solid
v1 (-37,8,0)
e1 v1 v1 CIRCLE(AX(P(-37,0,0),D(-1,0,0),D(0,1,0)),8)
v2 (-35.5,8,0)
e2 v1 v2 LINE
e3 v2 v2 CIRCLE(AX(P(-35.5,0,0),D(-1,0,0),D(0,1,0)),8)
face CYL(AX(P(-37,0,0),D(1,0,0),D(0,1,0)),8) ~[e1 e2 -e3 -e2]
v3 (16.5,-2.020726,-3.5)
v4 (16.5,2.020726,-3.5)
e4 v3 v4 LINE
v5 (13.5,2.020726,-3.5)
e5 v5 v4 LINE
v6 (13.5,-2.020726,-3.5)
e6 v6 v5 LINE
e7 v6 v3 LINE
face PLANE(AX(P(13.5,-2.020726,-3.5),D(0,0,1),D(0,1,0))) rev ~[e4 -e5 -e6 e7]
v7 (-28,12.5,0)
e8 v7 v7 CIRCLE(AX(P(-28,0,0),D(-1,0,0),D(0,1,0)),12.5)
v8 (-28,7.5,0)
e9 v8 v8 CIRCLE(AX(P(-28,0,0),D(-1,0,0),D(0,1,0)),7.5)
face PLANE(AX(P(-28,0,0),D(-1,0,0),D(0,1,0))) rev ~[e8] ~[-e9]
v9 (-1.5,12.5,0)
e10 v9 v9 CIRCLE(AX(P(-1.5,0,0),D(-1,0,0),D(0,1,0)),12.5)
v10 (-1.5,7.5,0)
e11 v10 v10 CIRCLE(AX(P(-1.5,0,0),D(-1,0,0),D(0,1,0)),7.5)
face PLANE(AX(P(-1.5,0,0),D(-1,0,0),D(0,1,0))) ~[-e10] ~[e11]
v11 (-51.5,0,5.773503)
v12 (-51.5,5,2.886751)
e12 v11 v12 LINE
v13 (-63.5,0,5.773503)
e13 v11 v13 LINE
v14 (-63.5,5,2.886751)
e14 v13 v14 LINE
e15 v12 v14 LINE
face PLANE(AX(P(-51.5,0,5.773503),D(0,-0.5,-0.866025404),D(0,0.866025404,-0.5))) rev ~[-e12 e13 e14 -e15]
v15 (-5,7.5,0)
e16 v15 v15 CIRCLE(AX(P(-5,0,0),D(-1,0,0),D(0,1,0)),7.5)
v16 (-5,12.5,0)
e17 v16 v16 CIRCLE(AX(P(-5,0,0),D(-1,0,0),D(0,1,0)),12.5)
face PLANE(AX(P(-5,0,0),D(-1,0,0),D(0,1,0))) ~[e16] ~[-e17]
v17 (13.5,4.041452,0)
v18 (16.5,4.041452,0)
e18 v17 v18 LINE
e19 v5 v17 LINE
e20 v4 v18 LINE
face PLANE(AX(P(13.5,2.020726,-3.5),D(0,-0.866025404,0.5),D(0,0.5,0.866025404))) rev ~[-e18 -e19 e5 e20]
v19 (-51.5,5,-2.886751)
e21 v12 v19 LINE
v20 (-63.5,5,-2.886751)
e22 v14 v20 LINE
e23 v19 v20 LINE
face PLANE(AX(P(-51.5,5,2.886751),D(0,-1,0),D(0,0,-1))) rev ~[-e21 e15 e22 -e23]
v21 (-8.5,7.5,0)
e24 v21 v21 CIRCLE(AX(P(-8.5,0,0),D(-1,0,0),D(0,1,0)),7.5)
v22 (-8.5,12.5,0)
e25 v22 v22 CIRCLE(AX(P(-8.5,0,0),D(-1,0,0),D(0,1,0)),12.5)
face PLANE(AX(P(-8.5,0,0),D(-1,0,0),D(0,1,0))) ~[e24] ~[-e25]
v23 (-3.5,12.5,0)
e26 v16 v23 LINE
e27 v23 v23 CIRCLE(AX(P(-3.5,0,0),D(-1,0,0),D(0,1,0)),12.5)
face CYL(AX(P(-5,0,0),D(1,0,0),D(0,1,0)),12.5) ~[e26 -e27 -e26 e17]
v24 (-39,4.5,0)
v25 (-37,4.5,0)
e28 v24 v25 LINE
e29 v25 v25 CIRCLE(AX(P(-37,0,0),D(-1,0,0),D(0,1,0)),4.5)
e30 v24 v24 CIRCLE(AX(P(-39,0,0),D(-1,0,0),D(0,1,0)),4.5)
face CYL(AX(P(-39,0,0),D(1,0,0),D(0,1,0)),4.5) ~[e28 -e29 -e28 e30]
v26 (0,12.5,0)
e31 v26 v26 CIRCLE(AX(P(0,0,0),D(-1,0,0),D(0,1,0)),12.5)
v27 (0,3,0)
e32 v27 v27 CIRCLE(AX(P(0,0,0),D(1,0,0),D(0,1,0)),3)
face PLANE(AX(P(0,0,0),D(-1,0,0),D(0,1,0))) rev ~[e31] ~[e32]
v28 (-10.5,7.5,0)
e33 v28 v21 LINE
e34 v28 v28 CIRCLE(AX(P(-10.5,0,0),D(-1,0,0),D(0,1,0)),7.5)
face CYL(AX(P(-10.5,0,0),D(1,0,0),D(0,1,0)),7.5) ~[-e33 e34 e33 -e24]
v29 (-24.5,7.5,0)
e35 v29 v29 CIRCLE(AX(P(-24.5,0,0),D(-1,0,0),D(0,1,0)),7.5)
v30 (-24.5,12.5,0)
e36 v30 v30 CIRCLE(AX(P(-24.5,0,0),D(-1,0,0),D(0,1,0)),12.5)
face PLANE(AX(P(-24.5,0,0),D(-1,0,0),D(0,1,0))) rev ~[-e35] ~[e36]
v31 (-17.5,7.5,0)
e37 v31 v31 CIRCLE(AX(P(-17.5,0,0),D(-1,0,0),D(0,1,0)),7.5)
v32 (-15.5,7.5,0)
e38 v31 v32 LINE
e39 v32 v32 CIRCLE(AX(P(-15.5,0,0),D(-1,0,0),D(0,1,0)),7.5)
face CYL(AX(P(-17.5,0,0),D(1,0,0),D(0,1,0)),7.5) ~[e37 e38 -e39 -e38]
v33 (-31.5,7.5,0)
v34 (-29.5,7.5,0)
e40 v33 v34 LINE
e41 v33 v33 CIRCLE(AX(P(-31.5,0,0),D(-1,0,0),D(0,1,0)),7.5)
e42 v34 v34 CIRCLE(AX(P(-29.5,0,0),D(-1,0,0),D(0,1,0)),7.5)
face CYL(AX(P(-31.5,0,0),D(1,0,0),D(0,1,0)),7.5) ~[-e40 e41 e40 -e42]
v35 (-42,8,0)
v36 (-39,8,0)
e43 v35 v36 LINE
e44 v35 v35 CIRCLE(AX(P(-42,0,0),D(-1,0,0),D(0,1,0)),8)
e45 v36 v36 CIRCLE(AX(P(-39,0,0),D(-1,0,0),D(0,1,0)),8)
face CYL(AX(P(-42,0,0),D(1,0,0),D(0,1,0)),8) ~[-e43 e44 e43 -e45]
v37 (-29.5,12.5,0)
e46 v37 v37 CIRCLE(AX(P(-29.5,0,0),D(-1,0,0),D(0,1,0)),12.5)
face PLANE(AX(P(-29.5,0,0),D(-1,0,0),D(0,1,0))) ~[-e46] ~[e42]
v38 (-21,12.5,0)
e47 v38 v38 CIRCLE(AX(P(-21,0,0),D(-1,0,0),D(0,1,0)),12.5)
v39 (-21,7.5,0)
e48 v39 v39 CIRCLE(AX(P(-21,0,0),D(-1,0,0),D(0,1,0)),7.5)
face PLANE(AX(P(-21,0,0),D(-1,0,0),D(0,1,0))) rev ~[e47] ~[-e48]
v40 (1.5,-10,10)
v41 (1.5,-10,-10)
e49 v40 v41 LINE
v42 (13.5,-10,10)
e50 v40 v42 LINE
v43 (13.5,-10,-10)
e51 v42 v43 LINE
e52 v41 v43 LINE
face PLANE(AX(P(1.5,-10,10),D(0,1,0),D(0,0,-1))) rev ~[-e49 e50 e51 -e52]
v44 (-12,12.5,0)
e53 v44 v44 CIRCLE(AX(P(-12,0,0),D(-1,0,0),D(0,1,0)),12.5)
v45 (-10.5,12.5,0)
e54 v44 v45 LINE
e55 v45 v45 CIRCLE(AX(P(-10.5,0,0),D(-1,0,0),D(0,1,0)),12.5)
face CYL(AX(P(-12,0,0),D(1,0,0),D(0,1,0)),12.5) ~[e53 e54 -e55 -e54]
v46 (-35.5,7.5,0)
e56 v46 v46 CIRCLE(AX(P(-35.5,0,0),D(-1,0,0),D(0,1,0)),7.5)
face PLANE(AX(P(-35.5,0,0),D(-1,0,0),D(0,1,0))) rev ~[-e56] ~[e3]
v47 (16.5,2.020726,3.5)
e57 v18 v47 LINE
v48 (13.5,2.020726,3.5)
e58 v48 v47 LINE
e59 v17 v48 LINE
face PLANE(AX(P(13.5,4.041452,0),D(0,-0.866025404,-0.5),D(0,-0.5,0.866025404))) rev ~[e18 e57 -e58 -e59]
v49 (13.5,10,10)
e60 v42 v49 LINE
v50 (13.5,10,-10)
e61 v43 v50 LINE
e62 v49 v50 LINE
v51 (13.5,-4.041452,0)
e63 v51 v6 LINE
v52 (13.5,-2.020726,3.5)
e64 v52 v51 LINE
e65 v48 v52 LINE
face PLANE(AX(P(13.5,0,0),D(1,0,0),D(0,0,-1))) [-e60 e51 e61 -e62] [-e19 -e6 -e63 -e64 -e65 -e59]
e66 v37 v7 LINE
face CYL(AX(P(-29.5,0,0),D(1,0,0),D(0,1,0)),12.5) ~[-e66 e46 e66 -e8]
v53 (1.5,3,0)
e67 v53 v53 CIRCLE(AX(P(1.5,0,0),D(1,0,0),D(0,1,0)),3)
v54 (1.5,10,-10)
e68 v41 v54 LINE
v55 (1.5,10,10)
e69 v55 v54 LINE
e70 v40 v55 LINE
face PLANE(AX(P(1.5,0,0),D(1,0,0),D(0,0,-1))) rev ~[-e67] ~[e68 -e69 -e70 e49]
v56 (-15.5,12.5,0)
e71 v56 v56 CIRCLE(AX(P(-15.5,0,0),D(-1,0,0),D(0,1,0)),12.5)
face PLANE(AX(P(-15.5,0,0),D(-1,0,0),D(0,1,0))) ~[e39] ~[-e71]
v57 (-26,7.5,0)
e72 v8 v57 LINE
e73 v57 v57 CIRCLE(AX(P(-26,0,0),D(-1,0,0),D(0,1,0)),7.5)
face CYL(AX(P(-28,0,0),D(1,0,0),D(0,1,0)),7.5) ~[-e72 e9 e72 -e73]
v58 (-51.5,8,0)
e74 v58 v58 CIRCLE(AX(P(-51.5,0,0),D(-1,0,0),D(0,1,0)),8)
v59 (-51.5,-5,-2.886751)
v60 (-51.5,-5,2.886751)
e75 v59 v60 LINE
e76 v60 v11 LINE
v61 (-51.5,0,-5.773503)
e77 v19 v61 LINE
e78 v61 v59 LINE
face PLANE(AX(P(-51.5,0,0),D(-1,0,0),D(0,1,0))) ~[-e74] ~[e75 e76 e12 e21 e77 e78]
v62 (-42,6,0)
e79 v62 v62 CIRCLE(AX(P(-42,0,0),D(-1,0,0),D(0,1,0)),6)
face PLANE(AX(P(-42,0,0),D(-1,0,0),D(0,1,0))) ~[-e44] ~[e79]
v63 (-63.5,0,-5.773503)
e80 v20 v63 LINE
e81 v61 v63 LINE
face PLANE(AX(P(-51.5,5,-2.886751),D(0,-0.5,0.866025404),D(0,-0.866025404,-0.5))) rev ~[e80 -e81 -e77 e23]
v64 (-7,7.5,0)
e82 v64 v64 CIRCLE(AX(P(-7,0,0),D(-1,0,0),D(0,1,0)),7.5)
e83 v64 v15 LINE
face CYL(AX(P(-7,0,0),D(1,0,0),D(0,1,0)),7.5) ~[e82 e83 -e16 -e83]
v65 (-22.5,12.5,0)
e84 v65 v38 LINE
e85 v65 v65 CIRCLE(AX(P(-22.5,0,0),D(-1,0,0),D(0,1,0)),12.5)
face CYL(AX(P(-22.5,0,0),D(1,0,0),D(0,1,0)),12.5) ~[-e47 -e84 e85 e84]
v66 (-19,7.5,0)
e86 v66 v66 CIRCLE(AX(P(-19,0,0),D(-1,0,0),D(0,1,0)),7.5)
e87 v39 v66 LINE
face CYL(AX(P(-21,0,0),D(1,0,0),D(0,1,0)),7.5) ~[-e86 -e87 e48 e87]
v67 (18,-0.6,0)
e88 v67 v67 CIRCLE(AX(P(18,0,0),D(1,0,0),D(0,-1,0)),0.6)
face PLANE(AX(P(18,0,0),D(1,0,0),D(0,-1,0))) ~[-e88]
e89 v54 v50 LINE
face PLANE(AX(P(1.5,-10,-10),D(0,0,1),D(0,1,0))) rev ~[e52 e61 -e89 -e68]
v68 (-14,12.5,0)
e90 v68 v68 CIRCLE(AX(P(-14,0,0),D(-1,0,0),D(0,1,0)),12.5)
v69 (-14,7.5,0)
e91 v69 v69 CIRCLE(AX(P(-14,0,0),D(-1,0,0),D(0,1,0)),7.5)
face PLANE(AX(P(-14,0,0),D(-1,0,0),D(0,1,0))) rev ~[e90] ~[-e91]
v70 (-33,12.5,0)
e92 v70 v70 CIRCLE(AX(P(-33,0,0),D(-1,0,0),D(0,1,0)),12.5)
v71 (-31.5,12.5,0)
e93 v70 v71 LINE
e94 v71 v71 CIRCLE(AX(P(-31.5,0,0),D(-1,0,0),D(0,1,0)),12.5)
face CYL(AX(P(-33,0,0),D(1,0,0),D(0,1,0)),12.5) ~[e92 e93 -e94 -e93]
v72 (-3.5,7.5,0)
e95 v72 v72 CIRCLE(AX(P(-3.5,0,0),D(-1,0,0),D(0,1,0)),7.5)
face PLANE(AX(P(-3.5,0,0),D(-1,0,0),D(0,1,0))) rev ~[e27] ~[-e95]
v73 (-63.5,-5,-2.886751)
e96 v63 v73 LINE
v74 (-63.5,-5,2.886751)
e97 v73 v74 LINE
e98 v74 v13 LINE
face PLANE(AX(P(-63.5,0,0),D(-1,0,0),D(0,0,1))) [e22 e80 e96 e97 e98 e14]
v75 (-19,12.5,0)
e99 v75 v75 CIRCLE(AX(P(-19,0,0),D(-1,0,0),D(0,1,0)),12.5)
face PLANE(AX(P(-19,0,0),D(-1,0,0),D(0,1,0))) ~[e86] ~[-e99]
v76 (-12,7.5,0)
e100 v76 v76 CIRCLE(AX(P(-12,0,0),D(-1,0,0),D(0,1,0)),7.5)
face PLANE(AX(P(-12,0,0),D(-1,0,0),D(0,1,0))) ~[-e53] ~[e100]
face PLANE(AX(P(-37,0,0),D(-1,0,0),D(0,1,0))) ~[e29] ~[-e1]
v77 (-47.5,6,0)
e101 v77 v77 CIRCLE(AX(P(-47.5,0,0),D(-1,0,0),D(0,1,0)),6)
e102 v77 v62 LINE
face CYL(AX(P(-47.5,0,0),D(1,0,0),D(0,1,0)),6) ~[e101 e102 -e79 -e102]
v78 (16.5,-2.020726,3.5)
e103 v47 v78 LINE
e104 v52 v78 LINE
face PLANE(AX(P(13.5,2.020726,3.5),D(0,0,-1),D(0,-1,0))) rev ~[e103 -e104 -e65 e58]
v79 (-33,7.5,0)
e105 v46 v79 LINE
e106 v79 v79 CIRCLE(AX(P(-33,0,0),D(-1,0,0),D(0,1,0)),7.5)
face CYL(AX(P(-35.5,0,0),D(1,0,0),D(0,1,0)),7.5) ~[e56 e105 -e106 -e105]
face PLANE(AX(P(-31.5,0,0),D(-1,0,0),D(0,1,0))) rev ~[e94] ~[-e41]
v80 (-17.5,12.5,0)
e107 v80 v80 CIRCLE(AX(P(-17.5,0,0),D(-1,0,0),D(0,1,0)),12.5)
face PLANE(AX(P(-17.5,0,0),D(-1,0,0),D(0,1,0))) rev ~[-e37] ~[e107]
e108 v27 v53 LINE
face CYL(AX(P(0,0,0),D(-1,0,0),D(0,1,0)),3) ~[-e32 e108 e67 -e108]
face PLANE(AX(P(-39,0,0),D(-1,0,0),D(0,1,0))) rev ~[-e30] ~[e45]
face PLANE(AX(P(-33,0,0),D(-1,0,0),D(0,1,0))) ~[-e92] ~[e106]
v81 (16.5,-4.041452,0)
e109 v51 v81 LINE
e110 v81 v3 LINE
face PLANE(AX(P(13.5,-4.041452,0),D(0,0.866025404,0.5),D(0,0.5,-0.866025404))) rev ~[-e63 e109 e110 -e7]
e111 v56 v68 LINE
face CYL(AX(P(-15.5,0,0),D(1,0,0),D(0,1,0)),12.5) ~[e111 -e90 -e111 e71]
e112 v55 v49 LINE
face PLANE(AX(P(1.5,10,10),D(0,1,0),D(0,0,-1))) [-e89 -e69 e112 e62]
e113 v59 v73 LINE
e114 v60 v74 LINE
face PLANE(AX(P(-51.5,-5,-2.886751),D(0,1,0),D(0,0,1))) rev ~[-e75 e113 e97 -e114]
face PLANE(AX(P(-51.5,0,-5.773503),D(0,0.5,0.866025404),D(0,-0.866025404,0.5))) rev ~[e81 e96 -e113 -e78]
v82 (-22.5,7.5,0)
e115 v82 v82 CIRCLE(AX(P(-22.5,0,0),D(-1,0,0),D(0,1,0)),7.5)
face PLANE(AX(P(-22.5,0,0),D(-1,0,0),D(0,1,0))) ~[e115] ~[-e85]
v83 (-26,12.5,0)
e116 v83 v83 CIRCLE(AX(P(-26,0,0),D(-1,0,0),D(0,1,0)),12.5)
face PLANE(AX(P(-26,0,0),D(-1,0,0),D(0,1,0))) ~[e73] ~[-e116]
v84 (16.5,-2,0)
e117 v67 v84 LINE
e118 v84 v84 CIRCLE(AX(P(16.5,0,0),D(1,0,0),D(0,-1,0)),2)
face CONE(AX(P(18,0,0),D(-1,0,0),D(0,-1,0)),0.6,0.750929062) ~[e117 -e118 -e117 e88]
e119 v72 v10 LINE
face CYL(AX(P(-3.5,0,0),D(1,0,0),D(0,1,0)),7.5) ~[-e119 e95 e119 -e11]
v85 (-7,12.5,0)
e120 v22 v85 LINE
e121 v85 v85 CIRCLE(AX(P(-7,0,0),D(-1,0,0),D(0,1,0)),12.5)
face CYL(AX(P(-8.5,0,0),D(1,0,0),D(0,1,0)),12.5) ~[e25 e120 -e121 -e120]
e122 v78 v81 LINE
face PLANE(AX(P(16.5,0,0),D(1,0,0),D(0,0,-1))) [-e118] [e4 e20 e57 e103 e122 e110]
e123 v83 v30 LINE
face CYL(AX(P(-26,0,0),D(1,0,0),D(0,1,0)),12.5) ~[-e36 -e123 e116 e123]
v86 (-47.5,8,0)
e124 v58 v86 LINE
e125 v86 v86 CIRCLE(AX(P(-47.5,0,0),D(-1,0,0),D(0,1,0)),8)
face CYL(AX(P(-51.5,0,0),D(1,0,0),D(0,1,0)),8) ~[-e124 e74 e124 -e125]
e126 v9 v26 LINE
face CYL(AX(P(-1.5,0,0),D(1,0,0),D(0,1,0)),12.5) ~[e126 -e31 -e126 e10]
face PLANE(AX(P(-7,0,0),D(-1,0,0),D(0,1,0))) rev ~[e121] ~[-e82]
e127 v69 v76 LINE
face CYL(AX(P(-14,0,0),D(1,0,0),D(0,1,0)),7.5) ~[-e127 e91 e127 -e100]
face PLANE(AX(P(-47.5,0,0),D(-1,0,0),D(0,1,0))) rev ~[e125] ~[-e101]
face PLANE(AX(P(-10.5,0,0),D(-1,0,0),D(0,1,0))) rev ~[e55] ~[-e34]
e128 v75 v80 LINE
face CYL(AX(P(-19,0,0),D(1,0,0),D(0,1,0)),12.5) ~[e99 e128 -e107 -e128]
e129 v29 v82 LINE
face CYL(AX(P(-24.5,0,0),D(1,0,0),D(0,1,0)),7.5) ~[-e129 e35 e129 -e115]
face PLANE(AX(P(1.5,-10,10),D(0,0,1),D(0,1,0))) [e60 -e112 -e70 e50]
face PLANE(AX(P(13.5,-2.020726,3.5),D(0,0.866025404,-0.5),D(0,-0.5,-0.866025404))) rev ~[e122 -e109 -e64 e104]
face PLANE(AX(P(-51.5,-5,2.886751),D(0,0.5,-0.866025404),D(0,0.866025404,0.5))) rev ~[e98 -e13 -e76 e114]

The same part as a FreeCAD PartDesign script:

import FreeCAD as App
import Part
import Sketcher

V = App.Vector
Q = App.Units.Quantity

doc = App.newDocument("Part")
params = doc.addObject("Spreadsheet::Sheet", "Params")
for row, (alias, value) in enumerate([
    ("sketch1_width", "2 mm"),
    ("sketch1_width2", "3 mm"),
    ("sketch1_width3", "4 mm"),
    ("sketch1_height", "5 mm"),
    ("sketch1_height2", "8 mm"),
    ("revolution_angle", "360 deg"),
    ("sketch2_diameter", "6 mm"),
    ("pad1_length", "1.5 mm"),
    ("sketch3_width", "20 mm"),
    ("pad2_length", "12 mm"),
    ("pad3_length", "3 mm"),
    ("sketch5_height", "2 mm"),
    ("sketch5_width", "1.5 mm"),
    ("sketch5_height2", "0.6 mm"),
    ("revolution2_angle", "360 deg"),
    ("pad4_length", "12 mm"),
], start=1):
    params.set(f"A{row}", alias)
    params.set(f"B{row}", "=" + value)
    params.setAlias(f"B{row}", alias)

body = doc.addObject("PartDesign::Body", "Body")

# Sketch on XY plane
sketch1 = body.newObject("Sketcher::SketchObject", "Sketch")
sketch1.AttachmentSupport = (doc.getObject("XY_Plane"), [""])
sketch1.MapMode = "FlatFace"
sketch1.addGeometry(Part.LineSegment(V(-51.5, 0, 0), V(0, 0, 0)), False)
sketch1.addGeometry(Part.LineSegment(V(0, 0, 0), V(0, 12.5, 0)), False)
sketch1.addGeometry(Part.LineSegment(V(0, 12.5, 0), V(-1.5, 12.5, 0)), False)
sketch1.addGeometry(Part.LineSegment(V(-1.5, 12.5, 0), V(-1.5, 7.5, 0)), False)
sketch1.addGeometry(Part.LineSegment(V(-1.5, 7.5, 0), V(-3.5, 7.5, 0)), False)
sketch1.addGeometry(Part.LineSegment(V(-3.5, 7.5, 0), V(-3.5, 12.5, 0)), False)
sketch1.addGeometry(Part.LineSegment(V(-3.5, 12.5, 0), V(-5, 12.5, 0)), False)
sketch1.addGeometry(Part.LineSegment(V(-5, 12.5, 0), V(-5, 7.5, 0)), False)
sketch1.addGeometry(Part.LineSegment(V(-5, 7.5, 0), V(-7, 7.5, 0)), False)
sketch1.addGeometry(Part.LineSegment(V(-7, 7.5, 0), V(-7, 12.5, 0)), False)
sketch1.addGeometry(Part.LineSegment(V(-7, 12.5, 0), V(-8.5, 12.5, 0)), False)
sketch1.addGeometry(Part.LineSegment(V(-8.5, 12.5, 0), V(-8.5, 7.5, 0)), False)
sketch1.addGeometry(Part.LineSegment(V(-8.5, 7.5, 0), V(-10.5, 7.5, 0)), False)
sketch1.addGeometry(Part.LineSegment(V(-10.5, 7.5, 0), V(-10.5, 12.5, 0)), False)
sketch1.addGeometry(Part.LineSegment(V(-10.5, 12.5, 0), V(-12, 12.5, 0)), False)
sketch1.addGeometry(Part.LineSegment(V(-12, 12.5, 0), V(-12, 7.5, 0)), False)
sketch1.addGeometry(Part.LineSegment(V(-12, 7.5, 0), V(-14, 7.5, 0)), False)
sketch1.addGeometry(Part.LineSegment(V(-14, 7.5, 0), V(-14, 12.5, 0)), False)
sketch1.addGeometry(Part.LineSegment(V(-14, 12.5, 0), V(-15.5, 12.5, 0)), False)
sketch1.addGeometry(Part.LineSegment(V(-15.5, 12.5, 0), V(-15.5, 7.5, 0)), False)
sketch1.addGeometry(Part.LineSegment(V(-15.5, 7.5, 0), V(-17.5, 7.5, 0)), False)
sketch1.addGeometry(Part.LineSegment(V(-17.5, 7.5, 0), V(-17.5, 12.5, 0)), False)
sketch1.addGeometry(Part.LineSegment(V(-17.5, 12.5, 0), V(-19, 12.5, 0)), False)
sketch1.addGeometry(Part.LineSegment(V(-19, 12.5, 0), V(-19, 7.5, 0)), False)
sketch1.addGeometry(Part.LineSegment(V(-19, 7.5, 0), V(-21, 7.5, 0)), False)
sketch1.addGeometry(Part.LineSegment(V(-21, 7.5, 0), V(-21, 12.5, 0)), False)
sketch1.addGeometry(Part.LineSegment(V(-21, 12.5, 0), V(-22.5, 12.5, 0)), False)
sketch1.addGeometry(Part.LineSegment(V(-22.5, 12.5, 0), V(-22.5, 7.5, 0)), False)
sketch1.addGeometry(Part.LineSegment(V(-22.5, 7.5, 0), V(-24.5, 7.5, 0)), False)
sketch1.addGeometry(Part.LineSegment(V(-24.5, 7.5, 0), V(-24.5, 12.5, 0)), False)
sketch1.addGeometry(Part.LineSegment(V(-24.5, 12.5, 0), V(-26, 12.5, 0)), False)
sketch1.addGeometry(Part.LineSegment(V(-26, 12.5, 0), V(-26, 7.5, 0)), False)
sketch1.addGeometry(Part.LineSegment(V(-26, 7.5, 0), V(-28, 7.5, 0)), False)
sketch1.addGeometry(Part.LineSegment(V(-28, 7.5, 0), V(-28, 12.5, 0)), False)
sketch1.addGeometry(Part.LineSegment(V(-28, 12.5, 0), V(-29.5, 12.5, 0)), False)
sketch1.addGeometry(Part.LineSegment(V(-29.5, 12.5, 0), V(-29.5, 7.5, 0)), False)
sketch1.addGeometry(Part.LineSegment(V(-29.5, 7.5, 0), V(-31.5, 7.5, 0)), False)
sketch1.addGeometry(Part.LineSegment(V(-31.5, 7.5, 0), V(-31.5, 12.5, 0)), False)
sketch1.addGeometry(Part.LineSegment(V(-31.5, 12.5, 0), V(-33, 12.5, 0)), False)
sketch1.addGeometry(Part.LineSegment(V(-33, 12.5, 0), V(-33, 7.5, 0)), False)
sketch1.addGeometry(Part.LineSegment(V(-33, 7.5, 0), V(-35.5, 7.5, 0)), False)
sketch1.addGeometry(Part.LineSegment(V(-35.5, 7.5, 0), V(-35.5, 8, 0)), False)
sketch1.addGeometry(Part.LineSegment(V(-35.5, 8, 0), V(-37, 8, 0)), False)
sketch1.addGeometry(Part.LineSegment(V(-37, 8, 0), V(-37, 4.5, 0)), False)
sketch1.addGeometry(Part.LineSegment(V(-37, 4.5, 0), V(-39, 4.5, 0)), False)
sketch1.addGeometry(Part.LineSegment(V(-39, 4.5, 0), V(-39, 8, 0)), False)
sketch1.addGeometry(Part.LineSegment(V(-39, 8, 0), V(-42, 8, 0)), False)
sketch1.addGeometry(Part.LineSegment(V(-42, 8, 0), V(-42, 6, 0)), False)
sketch1.addGeometry(Part.LineSegment(V(-42, 6, 0), V(-47.5, 6, 0)), False)
sketch1.addGeometry(Part.LineSegment(V(-47.5, 6, 0), V(-47.5, 8, 0)), False)
sketch1.addGeometry(Part.LineSegment(V(-47.5, 8, 0), V(-51.5, 8, 0)), False)
sketch1.addGeometry(Part.LineSegment(V(-51.5, 8, 0), V(-51.5, 0, 0)), False)
sketch1.addConstraint(Sketcher.Constraint("Coincident", 0, 2, 1, 1))
sketch1.addConstraint(Sketcher.Constraint("Coincident", 1, 2, 2, 1))
sketch1.addConstraint(Sketcher.Constraint("Coincident", 2, 2, 3, 1))
sketch1.addConstraint(Sketcher.Constraint("Coincident", 3, 2, 4, 1))
sketch1.addConstraint(Sketcher.Constraint("Coincident", 4, 2, 5, 1))
sketch1.addConstraint(Sketcher.Constraint("Coincident", 5, 2, 6, 1))
sketch1.addConstraint(Sketcher.Constraint("Coincident", 6, 2, 7, 1))
sketch1.addConstraint(Sketcher.Constraint("Coincident", 7, 2, 8, 1))
sketch1.addConstraint(Sketcher.Constraint("Coincident", 8, 2, 9, 1))
sketch1.addConstraint(Sketcher.Constraint("Coincident", 9, 2, 10, 1))
sketch1.addConstraint(Sketcher.Constraint("Coincident", 10, 2, 11, 1))
sketch1.addConstraint(Sketcher.Constraint("Coincident", 11, 2, 12, 1))
sketch1.addConstraint(Sketcher.Constraint("Coincident", 12, 2, 13, 1))
sketch1.addConstraint(Sketcher.Constraint("Coincident", 13, 2, 14, 1))
sketch1.addConstraint(Sketcher.Constraint("Coincident", 14, 2, 15, 1))
sketch1.addConstraint(Sketcher.Constraint("Coincident", 15, 2, 16, 1))
sketch1.addConstraint(Sketcher.Constraint("Coincident", 16, 2, 17, 1))
sketch1.addConstraint(Sketcher.Constraint("Coincident", 17, 2, 18, 1))
sketch1.addConstraint(Sketcher.Constraint("Coincident", 18, 2, 19, 1))
sketch1.addConstraint(Sketcher.Constraint("Coincident", 19, 2, 20, 1))
sketch1.addConstraint(Sketcher.Constraint("Coincident", 20, 2, 21, 1))
sketch1.addConstraint(Sketcher.Constraint("Coincident", 21, 2, 22, 1))
sketch1.addConstraint(Sketcher.Constraint("Coincident", 22, 2, 23, 1))
sketch1.addConstraint(Sketcher.Constraint("Coincident", 23, 2, 24, 1))
sketch1.addConstraint(Sketcher.Constraint("Coincident", 24, 2, 25, 1))
sketch1.addConstraint(Sketcher.Constraint("Coincident", 25, 2, 26, 1))
sketch1.addConstraint(Sketcher.Constraint("Coincident", 26, 2, 27, 1))
sketch1.addConstraint(Sketcher.Constraint("Coincident", 27, 2, 28, 1))
sketch1.addConstraint(Sketcher.Constraint("Coincident", 28, 2, 29, 1))
sketch1.addConstraint(Sketcher.Constraint("Coincident", 29, 2, 30, 1))
sketch1.addConstraint(Sketcher.Constraint("Coincident", 30, 2, 31, 1))
sketch1.addConstraint(Sketcher.Constraint("Coincident", 31, 2, 32, 1))
sketch1.addConstraint(Sketcher.Constraint("Coincident", 32, 2, 33, 1))
sketch1.addConstraint(Sketcher.Constraint("Coincident", 33, 2, 34, 1))
sketch1.addConstraint(Sketcher.Constraint("Coincident", 34, 2, 35, 1))
sketch1.addConstraint(Sketcher.Constraint("Coincident", 35, 2, 36, 1))
sketch1.addConstraint(Sketcher.Constraint("Coincident", 36, 2, 37, 1))
sketch1.addConstraint(Sketcher.Constraint("Coincident", 37, 2, 38, 1))
sketch1.addConstraint(Sketcher.Constraint("Coincident", 38, 2, 39, 1))
sketch1.addConstraint(Sketcher.Constraint("Coincident", 39, 2, 40, 1))
sketch1.addConstraint(Sketcher.Constraint("Coincident", 40, 2, 41, 1))
sketch1.addConstraint(Sketcher.Constraint("Coincident", 41, 2, 42, 1))
sketch1.addConstraint(Sketcher.Constraint("Coincident", 42, 2, 43, 1))
sketch1.addConstraint(Sketcher.Constraint("Coincident", 43, 2, 44, 1))
sketch1.addConstraint(Sketcher.Constraint("Coincident", 44, 2, 45, 1))
sketch1.addConstraint(Sketcher.Constraint("Coincident", 45, 2, 46, 1))
sketch1.addConstraint(Sketcher.Constraint("Coincident", 46, 2, 47, 1))
sketch1.addConstraint(Sketcher.Constraint("Coincident", 47, 2, 48, 1))
sketch1.addConstraint(Sketcher.Constraint("Coincident", 48, 2, 49, 1))
sketch1.addConstraint(Sketcher.Constraint("Coincident", 49, 2, 50, 1))
sketch1.addConstraint(Sketcher.Constraint("Coincident", 50, 2, 51, 1))
sketch1.addConstraint(Sketcher.Constraint("Coincident", 51, 2, 0, 1))
sketch1.addConstraint(Sketcher.Constraint("Horizontal", 0))
sketch1.addConstraint(Sketcher.Constraint("Vertical", 1))
sketch1.addConstraint(Sketcher.Constraint("Horizontal", 2))
sketch1.addConstraint(Sketcher.Constraint("Vertical", 3))
sketch1.addConstraint(Sketcher.Constraint("Horizontal", 4))
sketch1.addConstraint(Sketcher.Constraint("Vertical", 5))
sketch1.addConstraint(Sketcher.Constraint("Horizontal", 6))
sketch1.addConstraint(Sketcher.Constraint("Vertical", 7))
sketch1.addConstraint(Sketcher.Constraint("Horizontal", 8))
sketch1.addConstraint(Sketcher.Constraint("Vertical", 9))
sketch1.addConstraint(Sketcher.Constraint("Horizontal", 10))
sketch1.addConstraint(Sketcher.Constraint("Vertical", 11))
sketch1.addConstraint(Sketcher.Constraint("Horizontal", 12))
sketch1.addConstraint(Sketcher.Constraint("Vertical", 13))
sketch1.addConstraint(Sketcher.Constraint("Horizontal", 14))
sketch1.addConstraint(Sketcher.Constraint("Vertical", 15))
sketch1.addConstraint(Sketcher.Constraint("Horizontal", 16))
sketch1.addConstraint(Sketcher.Constraint("Vertical", 17))
sketch1.addConstraint(Sketcher.Constraint("Horizontal", 18))
sketch1.addConstraint(Sketcher.Constraint("Vertical", 19))
sketch1.addConstraint(Sketcher.Constraint("Horizontal", 20))
sketch1.addConstraint(Sketcher.Constraint("Vertical", 21))
sketch1.addConstraint(Sketcher.Constraint("Horizontal", 22))
sketch1.addConstraint(Sketcher.Constraint("Vertical", 23))
sketch1.addConstraint(Sketcher.Constraint("Horizontal", 24))
sketch1.addConstraint(Sketcher.Constraint("Vertical", 25))
sketch1.addConstraint(Sketcher.Constraint("Horizontal", 26))
sketch1.addConstraint(Sketcher.Constraint("Vertical", 27))
sketch1.addConstraint(Sketcher.Constraint("Horizontal", 28))
sketch1.addConstraint(Sketcher.Constraint("Vertical", 29))
sketch1.addConstraint(Sketcher.Constraint("Horizontal", 30))
sketch1.addConstraint(Sketcher.Constraint("Vertical", 31))
sketch1.addConstraint(Sketcher.Constraint("Horizontal", 32))
sketch1.addConstraint(Sketcher.Constraint("Vertical", 33))
sketch1.addConstraint(Sketcher.Constraint("Horizontal", 34))
sketch1.addConstraint(Sketcher.Constraint("Vertical", 35))
sketch1.addConstraint(Sketcher.Constraint("Horizontal", 36))
sketch1.addConstraint(Sketcher.Constraint("Vertical", 37))
sketch1.addConstraint(Sketcher.Constraint("Horizontal", 38))
sketch1.addConstraint(Sketcher.Constraint("Vertical", 39))
sketch1.addConstraint(Sketcher.Constraint("Horizontal", 40))
sketch1.addConstraint(Sketcher.Constraint("Vertical", 41))
sketch1.addConstraint(Sketcher.Constraint("Horizontal", 42))
sketch1.addConstraint(Sketcher.Constraint("Vertical", 43))
sketch1.addConstraint(Sketcher.Constraint("Horizontal", 44))
sketch1.addConstraint(Sketcher.Constraint("Vertical", 45))
sketch1.addConstraint(Sketcher.Constraint("Horizontal", 46))
sketch1.addConstraint(Sketcher.Constraint("Vertical", 47))
sketch1.addConstraint(Sketcher.Constraint("Horizontal", 48))
sketch1.addConstraint(Sketcher.Constraint("Vertical", 49))
sketch1.addConstraint(Sketcher.Constraint("Horizontal", 50))
sketch1.addConstraint(Sketcher.Constraint("Vertical", 51))
sketch1.addConstraint(Sketcher.Constraint("Coincident", 0, 2, -1, 1))
sketch1.addConstraint(Sketcher.Constraint("Horizontal", 2, 2, 5, 2))
sketch1.addConstraint(Sketcher.Constraint("Horizontal", 4, 2, 7, 2))
sketch1.addConstraint(Sketcher.Constraint("Horizontal", 6, 2, 9, 2))
sketch1.addConstraint(Sketcher.Constraint("Horizontal", 8, 2, 11, 2))
sketch1.addConstraint(Sketcher.Constraint("Horizontal", 10, 2, 13, 2))
sketch1.addConstraint(Sketcher.Constraint("Horizontal", 12, 2, 15, 2))
sketch1.addConstraint(Sketcher.Constraint("Horizontal", 14, 2, 17, 2))
sketch1.addConstraint(Sketcher.Constraint("Horizontal", 16, 2, 19, 2))
sketch1.addConstraint(Sketcher.Constraint("Horizontal", 18, 2, 21, 2))
sketch1.addConstraint(Sketcher.Constraint("Horizontal", 20, 2, 23, 2))
sketch1.addConstraint(Sketcher.Constraint("Horizontal", 22, 2, 25, 2))
sketch1.addConstraint(Sketcher.Constraint("Horizontal", 24, 2, 27, 2))
sketch1.addConstraint(Sketcher.Constraint("Horizontal", 26, 2, 29, 2))
sketch1.addConstraint(Sketcher.Constraint("Horizontal", 28, 2, 31, 2))
sketch1.addConstraint(Sketcher.Constraint("Horizontal", 30, 2, 33, 2))
sketch1.addConstraint(Sketcher.Constraint("Horizontal", 32, 2, 35, 2))
sketch1.addConstraint(Sketcher.Constraint("Horizontal", 34, 2, 37, 2))
sketch1.addConstraint(Sketcher.Constraint("Horizontal", 36, 2, 39, 2))
sketch1.addConstraint(Sketcher.Constraint("Horizontal", 42, 2, 45, 2))
sketch1.addConstraint(Sketcher.Constraint("Horizontal", 46, 2, 49, 2))
sketch1.addConstraint(Sketcher.Constraint("Equal", 2, 6))
sketch1.addConstraint(Sketcher.Constraint("Equal", 4, 8))
sketch1.addConstraint(Sketcher.Constraint("Equal", 6, 10))
sketch1.addConstraint(Sketcher.Constraint("Equal", 8, 12))
sketch1.addConstraint(Sketcher.Constraint("Equal", 10, 14))
sketch1.addConstraint(Sketcher.Constraint("Equal", 12, 16))
sketch1.addConstraint(Sketcher.Constraint("Equal", 14, 18))
sketch1.addConstraint(Sketcher.Constraint("Equal", 16, 20))
sketch1.addConstraint(Sketcher.Constraint("Equal", 18, 22))
sketch1.addConstraint(Sketcher.Constraint("Equal", 20, 24))
sketch1.addConstraint(Sketcher.Constraint("Equal", 22, 26))
sketch1.addConstraint(Sketcher.Constraint("Equal", 24, 28))
sketch1.addConstraint(Sketcher.Constraint("Equal", 26, 30))
sketch1.addConstraint(Sketcher.Constraint("Equal", 28, 32))
sketch1.addConstraint(Sketcher.Constraint("Equal", 30, 34))
sketch1.addConstraint(Sketcher.Constraint("Equal", 32, 36))
sketch1.addConstraint(Sketcher.Constraint("Equal", 34, 38))
sketch1.addConstraint(Sketcher.Constraint("Equal", 38, 42))
sketch1.addConstraint(Sketcher.Constraint("Equal", 36, 44))
sketch1.addConstraint(Sketcher.Constraint("Equal", 44, 47))
sketch1.addConstraint(Sketcher.Constraint("DistanceX", 4, 2, 4, 1, Q("2 mm")))
sketch1.addConstraint(Sketcher.Constraint("DistanceX", 46, 2, 46, 1, Q("3 mm")))
sketch1.addConstraint(Sketcher.Constraint("DistanceX", 50, 2, 50, 1, Q("4 mm")))
sketch1.addConstraint(Sketcher.Constraint("DistanceY", 3, 2, 3, 1, Q("5 mm")))
sketch1.addConstraint(Sketcher.Constraint("DistanceY", 51, 2, 51, 1, Q("8 mm")))
sketch1.addConstraint(Sketcher.Constraint("DistanceX", 0, 1, 0, 2, Q("51.5 mm")))
sketch1.addConstraint(Sketcher.Constraint("DistanceX", 2, 2, 2, 1, Q("1.5 mm")))
sketch1.addConstraint(Sketcher.Constraint("DistanceX", 40, 2, 40, 1, Q("2.5 mm")))
sketch1.addConstraint(Sketcher.Constraint("DistanceY", 1, 1, 1, 2, Q("12.5 mm")))
sketch1.addConstraint(Sketcher.Constraint("DistanceY", 43, 2, 43, 1, Q("3.5 mm")))
sketch1.setExpression("Constraints[145]", "Params.sketch1_width")
sketch1.setExpression("Constraints[146]", "Params.sketch1_width2")
sketch1.setExpression("Constraints[147]", "Params.sketch1_width3")
sketch1.setExpression("Constraints[148]", "Params.sketch1_height")
sketch1.setExpression("Constraints[149]", "Params.sketch1_height2")
revolution = body.newObject("PartDesign::Revolution", "Revolution")
revolution.Profile = sketch1
revolution.ReferenceAxis = (sketch1, ["H_Axis"])
revolution.setExpression("Angle", "Params.revolution_angle")

# Sketch on YZ plane
sketch2 = body.newObject("Sketcher::SketchObject", "Sketch001")
sketch2.AttachmentSupport = (doc.getObject("YZ_Plane"), [""])
sketch2.MapMode = "FlatFace"
sketch2.addGeometry(Part.Circle(V(0, 0, 0), V(0, 0, 1), 3), False)
sketch2.addConstraint(Sketcher.Constraint("Coincident", 0, 3, -1, 1))
sketch2.addConstraint(Sketcher.Constraint("Diameter", 0, Q("6 mm")))
sketch2.setExpression("Constraints[1]", "Params.sketch2_diameter")
pad1 = body.newObject("PartDesign::Pad", "Pad")
pad1.Profile = sketch2
pad1.setExpression("Length", "Params.pad1_length")

# Sketch on YZ plane
sketch3 = body.newObject("Sketcher::SketchObject", "Sketch002")
sketch3.AttachmentSupport = (doc.getObject("YZ_Plane"), [""])
sketch3.MapMode = "FlatFace"
sketch3.AttachmentOffset = App.Placement(V(0, 0, 1.5), App.Rotation())
sketch3.addGeometry(Part.LineSegment(V(10, 10, 0), V(-10, 10, 0)), False)
sketch3.addGeometry(Part.LineSegment(V(-10, 10, 0), V(-10, -10, 0)), False)
sketch3.addGeometry(Part.LineSegment(V(-10, -10, 0), V(10, -10, 0)), False)
sketch3.addGeometry(Part.LineSegment(V(10, -10, 0), V(10, 10, 0)), False)
sketch3.addConstraint(Sketcher.Constraint("Coincident", 0, 2, 1, 1))
sketch3.addConstraint(Sketcher.Constraint("Coincident", 1, 2, 2, 1))
sketch3.addConstraint(Sketcher.Constraint("Coincident", 2, 2, 3, 1))
sketch3.addConstraint(Sketcher.Constraint("Coincident", 3, 2, 0, 1))
sketch3.addConstraint(Sketcher.Constraint("Horizontal", 0))
sketch3.addConstraint(Sketcher.Constraint("Vertical", 1))
sketch3.addConstraint(Sketcher.Constraint("Horizontal", 2))
sketch3.addConstraint(Sketcher.Constraint("Vertical", 3))
sketch3.addConstraint(Sketcher.Constraint("Symmetric", 0, 2, 2, 2, -1, 1))
sketch3.addConstraint(Sketcher.Constraint("Equal", 2, 1))
sketch3.addConstraint(Sketcher.Constraint("DistanceX", 0, 2, 0, 1, Q("20 mm")))
sketch3.setExpression("Constraints[10]", "Params.sketch3_width")
pad2 = body.newObject("PartDesign::Pad", "Pad001")
pad2.Profile = sketch3
pad2.setExpression("Length", "Params.pad2_length")

# Sketch on YZ plane
sketch4 = body.newObject("Sketcher::SketchObject", "Sketch003")
sketch4.AttachmentSupport = (doc.getObject("YZ_Plane"), [""])
sketch4.MapMode = "FlatFace"
sketch4.AttachmentOffset = App.Placement(V(0, 0, 13.5), App.Rotation())
sketch4.addGeometry(Part.LineSegment(V(4.041452, 0, 0), V(2.020726, 3.5, 0)), False)
sketch4.addGeometry(Part.LineSegment(V(2.020726, 3.5, 0), V(-2.020726, 3.5, 0)), False)
sketch4.addGeometry(Part.LineSegment(V(-2.020726, 3.5, 0), V(-4.041452, 0, 0)), False)
sketch4.addGeometry(Part.LineSegment(V(-4.041452, 0, 0), V(-2.020726, -3.5, 0)), False)
sketch4.addGeometry(Part.LineSegment(V(-2.020726, -3.5, 0), V(2.020726, -3.5, 0)), False)
sketch4.addGeometry(Part.LineSegment(V(2.020726, -3.5, 0), V(4.041452, 0, 0)), False)
sketch4.addConstraint(Sketcher.Constraint("Coincident", 0, 2, 1, 1))
sketch4.addConstraint(Sketcher.Constraint("Coincident", 1, 2, 2, 1))
sketch4.addConstraint(Sketcher.Constraint("Coincident", 2, 2, 3, 1))
sketch4.addConstraint(Sketcher.Constraint("Coincident", 3, 2, 4, 1))
sketch4.addConstraint(Sketcher.Constraint("Coincident", 4, 2, 5, 1))
sketch4.addConstraint(Sketcher.Constraint("Coincident", 5, 2, 0, 1))
sketch4.addConstraint(Sketcher.Constraint("Horizontal", 1))
sketch4.addConstraint(Sketcher.Constraint("Horizontal", 4))
sketch4.addConstraint(Sketcher.Constraint("Symmetric", 0, 2, 3, 2, -1, 1))
sketch4.addConstraint(Sketcher.Constraint("Symmetric", 2, 2, 5, 2, -1, 1))
sketch4.addConstraint(Sketcher.Constraint("PointOnObject", 2, 2, -1))
sketch4.addConstraint(Sketcher.Constraint("Parallel", 2, 5))
sketch4.addConstraint(Sketcher.Constraint("Vertical", 1, 2, 3, 2))
sketch4.addConstraint(Sketcher.Constraint("Angle", 0, Q("120 deg")))
sketch4.addConstraint(Sketcher.Constraint("DistanceY", 3, 2, 1, 2, Q("7 mm")))
sketch4.addConstraint(Sketcher.Constraint("DistanceX", 1, 2, 1, 1, Q("4.041452 mm")))
pad3 = body.newObject("PartDesign::Pad", "Pad002")
pad3.Profile = sketch4
pad3.setExpression("Length", "Params.pad3_length")

# Sketch on XY plane
sketch5 = body.newObject("Sketcher::SketchObject", "Sketch004")
sketch5.AttachmentSupport = (doc.getObject("XY_Plane"), [""])
sketch5.MapMode = "FlatFace"
sketch5.addGeometry(Part.LineSegment(V(16.5, 0, 0), V(18, 0, 0)), False)
sketch5.addGeometry(Part.LineSegment(V(18, 0, 0), V(18, 0.6, 0)), False)
sketch5.addGeometry(Part.LineSegment(V(18, 0.6, 0), V(16.5, 2, 0)), False)
sketch5.addGeometry(Part.LineSegment(V(16.5, 2, 0), V(16.5, 0, 0)), False)
sketch5.addConstraint(Sketcher.Constraint("Coincident", 0, 2, 1, 1))
sketch5.addConstraint(Sketcher.Constraint("Coincident", 1, 2, 2, 1))
sketch5.addConstraint(Sketcher.Constraint("Coincident", 2, 2, 3, 1))
sketch5.addConstraint(Sketcher.Constraint("Coincident", 3, 2, 0, 1))
sketch5.addConstraint(Sketcher.Constraint("Horizontal", 0))
sketch5.addConstraint(Sketcher.Constraint("Vertical", 1))
sketch5.addConstraint(Sketcher.Constraint("Vertical", 3))
sketch5.addConstraint(Sketcher.Constraint("PointOnObject", 0, 2, -1))
sketch5.addConstraint(Sketcher.Constraint("DistanceY", 3, 2, 3, 1, Q("2 mm")))
sketch5.addConstraint(Sketcher.Constraint("DistanceX", 0, 1, 0, 2, Q("1.5 mm")))
sketch5.addConstraint(Sketcher.Constraint("DistanceY", 1, 1, 1, 2, Q("0.6 mm")))
sketch5.addConstraint(Sketcher.Constraint("DistanceX", -1, 1, 0, 2, Q("18 mm")))
sketch5.setExpression("Constraints[8]", "Params.sketch5_height")
sketch5.setExpression("Constraints[9]", "Params.sketch5_width")
sketch5.setExpression("Constraints[10]", "Params.sketch5_height2")
revolution2 = body.newObject("PartDesign::Revolution", "Revolution001")
revolution2.Profile = sketch5
revolution2.ReferenceAxis = (sketch5, ["H_Axis"])
revolution2.setExpression("Angle", "Params.revolution2_angle")

# Sketch on YZ plane
sketch6 = body.newObject("Sketcher::SketchObject", "Sketch005")
sketch6.AttachmentSupport = (doc.getObject("YZ_Plane"), [""])
sketch6.MapMode = "FlatFace"
sketch6.AttachmentOffset = App.Placement(V(0, 0, -51.5), App.Rotation())
sketch6.addGeometry(Part.LineSegment(V(0, -5.773503, 0), V(-5, -2.886751, 0)), False)
sketch6.addGeometry(Part.LineSegment(V(-5, -2.886751, 0), V(-5, 2.886751, 0)), False)
sketch6.addGeometry(Part.LineSegment(V(-5, 2.886751, 0), V(0, 5.773503, 0)), False)
sketch6.addGeometry(Part.LineSegment(V(0, 5.773503, 0), V(5, 2.886751, 0)), False)
sketch6.addGeometry(Part.LineSegment(V(5, 2.886751, 0), V(5, -2.886751, 0)), False)
sketch6.addGeometry(Part.LineSegment(V(5, -2.886751, 0), V(0, -5.773503, 0)), False)
sketch6.addConstraint(Sketcher.Constraint("Coincident", 0, 2, 1, 1))
sketch6.addConstraint(Sketcher.Constraint("Coincident", 1, 2, 2, 1))
sketch6.addConstraint(Sketcher.Constraint("Coincident", 2, 2, 3, 1))
sketch6.addConstraint(Sketcher.Constraint("Coincident", 3, 2, 4, 1))
sketch6.addConstraint(Sketcher.Constraint("Coincident", 4, 2, 5, 1))
sketch6.addConstraint(Sketcher.Constraint("Coincident", 5, 2, 0, 1))
sketch6.addConstraint(Sketcher.Constraint("Vertical", 1))
sketch6.addConstraint(Sketcher.Constraint("Vertical", 4))
sketch6.addConstraint(Sketcher.Constraint("Symmetric", 0, 2, 3, 2, -1, 1))
sketch6.addConstraint(Sketcher.Constraint("Symmetric", 2, 2, 5, 2, -1, 1))
sketch6.addConstraint(Sketcher.Constraint("PointOnObject", 2, 2, -2))
sketch6.addConstraint(Sketcher.Constraint("Parallel", 2, 5))
sketch6.addConstraint(Sketcher.Constraint("Horizontal", 1, 2, 3, 2))
sketch6.addConstraint(Sketcher.Constraint("Angle", 0, Q("150 deg")))
sketch6.addConstraint(Sketcher.Constraint("DistanceX", 0, 2, -1, 1, Q("5 mm")))
sketch6.addConstraint(Sketcher.Constraint("DistanceY", 1, 1, 1, 2, Q("5.773503 mm")))
pad4 = body.newObject("PartDesign::Pad", "Pad003")
pad4.Profile = sketch6
pad4.setExpression("Length", "Params.pad4_length")
pad4.Reversed = True

doc.recompute()
